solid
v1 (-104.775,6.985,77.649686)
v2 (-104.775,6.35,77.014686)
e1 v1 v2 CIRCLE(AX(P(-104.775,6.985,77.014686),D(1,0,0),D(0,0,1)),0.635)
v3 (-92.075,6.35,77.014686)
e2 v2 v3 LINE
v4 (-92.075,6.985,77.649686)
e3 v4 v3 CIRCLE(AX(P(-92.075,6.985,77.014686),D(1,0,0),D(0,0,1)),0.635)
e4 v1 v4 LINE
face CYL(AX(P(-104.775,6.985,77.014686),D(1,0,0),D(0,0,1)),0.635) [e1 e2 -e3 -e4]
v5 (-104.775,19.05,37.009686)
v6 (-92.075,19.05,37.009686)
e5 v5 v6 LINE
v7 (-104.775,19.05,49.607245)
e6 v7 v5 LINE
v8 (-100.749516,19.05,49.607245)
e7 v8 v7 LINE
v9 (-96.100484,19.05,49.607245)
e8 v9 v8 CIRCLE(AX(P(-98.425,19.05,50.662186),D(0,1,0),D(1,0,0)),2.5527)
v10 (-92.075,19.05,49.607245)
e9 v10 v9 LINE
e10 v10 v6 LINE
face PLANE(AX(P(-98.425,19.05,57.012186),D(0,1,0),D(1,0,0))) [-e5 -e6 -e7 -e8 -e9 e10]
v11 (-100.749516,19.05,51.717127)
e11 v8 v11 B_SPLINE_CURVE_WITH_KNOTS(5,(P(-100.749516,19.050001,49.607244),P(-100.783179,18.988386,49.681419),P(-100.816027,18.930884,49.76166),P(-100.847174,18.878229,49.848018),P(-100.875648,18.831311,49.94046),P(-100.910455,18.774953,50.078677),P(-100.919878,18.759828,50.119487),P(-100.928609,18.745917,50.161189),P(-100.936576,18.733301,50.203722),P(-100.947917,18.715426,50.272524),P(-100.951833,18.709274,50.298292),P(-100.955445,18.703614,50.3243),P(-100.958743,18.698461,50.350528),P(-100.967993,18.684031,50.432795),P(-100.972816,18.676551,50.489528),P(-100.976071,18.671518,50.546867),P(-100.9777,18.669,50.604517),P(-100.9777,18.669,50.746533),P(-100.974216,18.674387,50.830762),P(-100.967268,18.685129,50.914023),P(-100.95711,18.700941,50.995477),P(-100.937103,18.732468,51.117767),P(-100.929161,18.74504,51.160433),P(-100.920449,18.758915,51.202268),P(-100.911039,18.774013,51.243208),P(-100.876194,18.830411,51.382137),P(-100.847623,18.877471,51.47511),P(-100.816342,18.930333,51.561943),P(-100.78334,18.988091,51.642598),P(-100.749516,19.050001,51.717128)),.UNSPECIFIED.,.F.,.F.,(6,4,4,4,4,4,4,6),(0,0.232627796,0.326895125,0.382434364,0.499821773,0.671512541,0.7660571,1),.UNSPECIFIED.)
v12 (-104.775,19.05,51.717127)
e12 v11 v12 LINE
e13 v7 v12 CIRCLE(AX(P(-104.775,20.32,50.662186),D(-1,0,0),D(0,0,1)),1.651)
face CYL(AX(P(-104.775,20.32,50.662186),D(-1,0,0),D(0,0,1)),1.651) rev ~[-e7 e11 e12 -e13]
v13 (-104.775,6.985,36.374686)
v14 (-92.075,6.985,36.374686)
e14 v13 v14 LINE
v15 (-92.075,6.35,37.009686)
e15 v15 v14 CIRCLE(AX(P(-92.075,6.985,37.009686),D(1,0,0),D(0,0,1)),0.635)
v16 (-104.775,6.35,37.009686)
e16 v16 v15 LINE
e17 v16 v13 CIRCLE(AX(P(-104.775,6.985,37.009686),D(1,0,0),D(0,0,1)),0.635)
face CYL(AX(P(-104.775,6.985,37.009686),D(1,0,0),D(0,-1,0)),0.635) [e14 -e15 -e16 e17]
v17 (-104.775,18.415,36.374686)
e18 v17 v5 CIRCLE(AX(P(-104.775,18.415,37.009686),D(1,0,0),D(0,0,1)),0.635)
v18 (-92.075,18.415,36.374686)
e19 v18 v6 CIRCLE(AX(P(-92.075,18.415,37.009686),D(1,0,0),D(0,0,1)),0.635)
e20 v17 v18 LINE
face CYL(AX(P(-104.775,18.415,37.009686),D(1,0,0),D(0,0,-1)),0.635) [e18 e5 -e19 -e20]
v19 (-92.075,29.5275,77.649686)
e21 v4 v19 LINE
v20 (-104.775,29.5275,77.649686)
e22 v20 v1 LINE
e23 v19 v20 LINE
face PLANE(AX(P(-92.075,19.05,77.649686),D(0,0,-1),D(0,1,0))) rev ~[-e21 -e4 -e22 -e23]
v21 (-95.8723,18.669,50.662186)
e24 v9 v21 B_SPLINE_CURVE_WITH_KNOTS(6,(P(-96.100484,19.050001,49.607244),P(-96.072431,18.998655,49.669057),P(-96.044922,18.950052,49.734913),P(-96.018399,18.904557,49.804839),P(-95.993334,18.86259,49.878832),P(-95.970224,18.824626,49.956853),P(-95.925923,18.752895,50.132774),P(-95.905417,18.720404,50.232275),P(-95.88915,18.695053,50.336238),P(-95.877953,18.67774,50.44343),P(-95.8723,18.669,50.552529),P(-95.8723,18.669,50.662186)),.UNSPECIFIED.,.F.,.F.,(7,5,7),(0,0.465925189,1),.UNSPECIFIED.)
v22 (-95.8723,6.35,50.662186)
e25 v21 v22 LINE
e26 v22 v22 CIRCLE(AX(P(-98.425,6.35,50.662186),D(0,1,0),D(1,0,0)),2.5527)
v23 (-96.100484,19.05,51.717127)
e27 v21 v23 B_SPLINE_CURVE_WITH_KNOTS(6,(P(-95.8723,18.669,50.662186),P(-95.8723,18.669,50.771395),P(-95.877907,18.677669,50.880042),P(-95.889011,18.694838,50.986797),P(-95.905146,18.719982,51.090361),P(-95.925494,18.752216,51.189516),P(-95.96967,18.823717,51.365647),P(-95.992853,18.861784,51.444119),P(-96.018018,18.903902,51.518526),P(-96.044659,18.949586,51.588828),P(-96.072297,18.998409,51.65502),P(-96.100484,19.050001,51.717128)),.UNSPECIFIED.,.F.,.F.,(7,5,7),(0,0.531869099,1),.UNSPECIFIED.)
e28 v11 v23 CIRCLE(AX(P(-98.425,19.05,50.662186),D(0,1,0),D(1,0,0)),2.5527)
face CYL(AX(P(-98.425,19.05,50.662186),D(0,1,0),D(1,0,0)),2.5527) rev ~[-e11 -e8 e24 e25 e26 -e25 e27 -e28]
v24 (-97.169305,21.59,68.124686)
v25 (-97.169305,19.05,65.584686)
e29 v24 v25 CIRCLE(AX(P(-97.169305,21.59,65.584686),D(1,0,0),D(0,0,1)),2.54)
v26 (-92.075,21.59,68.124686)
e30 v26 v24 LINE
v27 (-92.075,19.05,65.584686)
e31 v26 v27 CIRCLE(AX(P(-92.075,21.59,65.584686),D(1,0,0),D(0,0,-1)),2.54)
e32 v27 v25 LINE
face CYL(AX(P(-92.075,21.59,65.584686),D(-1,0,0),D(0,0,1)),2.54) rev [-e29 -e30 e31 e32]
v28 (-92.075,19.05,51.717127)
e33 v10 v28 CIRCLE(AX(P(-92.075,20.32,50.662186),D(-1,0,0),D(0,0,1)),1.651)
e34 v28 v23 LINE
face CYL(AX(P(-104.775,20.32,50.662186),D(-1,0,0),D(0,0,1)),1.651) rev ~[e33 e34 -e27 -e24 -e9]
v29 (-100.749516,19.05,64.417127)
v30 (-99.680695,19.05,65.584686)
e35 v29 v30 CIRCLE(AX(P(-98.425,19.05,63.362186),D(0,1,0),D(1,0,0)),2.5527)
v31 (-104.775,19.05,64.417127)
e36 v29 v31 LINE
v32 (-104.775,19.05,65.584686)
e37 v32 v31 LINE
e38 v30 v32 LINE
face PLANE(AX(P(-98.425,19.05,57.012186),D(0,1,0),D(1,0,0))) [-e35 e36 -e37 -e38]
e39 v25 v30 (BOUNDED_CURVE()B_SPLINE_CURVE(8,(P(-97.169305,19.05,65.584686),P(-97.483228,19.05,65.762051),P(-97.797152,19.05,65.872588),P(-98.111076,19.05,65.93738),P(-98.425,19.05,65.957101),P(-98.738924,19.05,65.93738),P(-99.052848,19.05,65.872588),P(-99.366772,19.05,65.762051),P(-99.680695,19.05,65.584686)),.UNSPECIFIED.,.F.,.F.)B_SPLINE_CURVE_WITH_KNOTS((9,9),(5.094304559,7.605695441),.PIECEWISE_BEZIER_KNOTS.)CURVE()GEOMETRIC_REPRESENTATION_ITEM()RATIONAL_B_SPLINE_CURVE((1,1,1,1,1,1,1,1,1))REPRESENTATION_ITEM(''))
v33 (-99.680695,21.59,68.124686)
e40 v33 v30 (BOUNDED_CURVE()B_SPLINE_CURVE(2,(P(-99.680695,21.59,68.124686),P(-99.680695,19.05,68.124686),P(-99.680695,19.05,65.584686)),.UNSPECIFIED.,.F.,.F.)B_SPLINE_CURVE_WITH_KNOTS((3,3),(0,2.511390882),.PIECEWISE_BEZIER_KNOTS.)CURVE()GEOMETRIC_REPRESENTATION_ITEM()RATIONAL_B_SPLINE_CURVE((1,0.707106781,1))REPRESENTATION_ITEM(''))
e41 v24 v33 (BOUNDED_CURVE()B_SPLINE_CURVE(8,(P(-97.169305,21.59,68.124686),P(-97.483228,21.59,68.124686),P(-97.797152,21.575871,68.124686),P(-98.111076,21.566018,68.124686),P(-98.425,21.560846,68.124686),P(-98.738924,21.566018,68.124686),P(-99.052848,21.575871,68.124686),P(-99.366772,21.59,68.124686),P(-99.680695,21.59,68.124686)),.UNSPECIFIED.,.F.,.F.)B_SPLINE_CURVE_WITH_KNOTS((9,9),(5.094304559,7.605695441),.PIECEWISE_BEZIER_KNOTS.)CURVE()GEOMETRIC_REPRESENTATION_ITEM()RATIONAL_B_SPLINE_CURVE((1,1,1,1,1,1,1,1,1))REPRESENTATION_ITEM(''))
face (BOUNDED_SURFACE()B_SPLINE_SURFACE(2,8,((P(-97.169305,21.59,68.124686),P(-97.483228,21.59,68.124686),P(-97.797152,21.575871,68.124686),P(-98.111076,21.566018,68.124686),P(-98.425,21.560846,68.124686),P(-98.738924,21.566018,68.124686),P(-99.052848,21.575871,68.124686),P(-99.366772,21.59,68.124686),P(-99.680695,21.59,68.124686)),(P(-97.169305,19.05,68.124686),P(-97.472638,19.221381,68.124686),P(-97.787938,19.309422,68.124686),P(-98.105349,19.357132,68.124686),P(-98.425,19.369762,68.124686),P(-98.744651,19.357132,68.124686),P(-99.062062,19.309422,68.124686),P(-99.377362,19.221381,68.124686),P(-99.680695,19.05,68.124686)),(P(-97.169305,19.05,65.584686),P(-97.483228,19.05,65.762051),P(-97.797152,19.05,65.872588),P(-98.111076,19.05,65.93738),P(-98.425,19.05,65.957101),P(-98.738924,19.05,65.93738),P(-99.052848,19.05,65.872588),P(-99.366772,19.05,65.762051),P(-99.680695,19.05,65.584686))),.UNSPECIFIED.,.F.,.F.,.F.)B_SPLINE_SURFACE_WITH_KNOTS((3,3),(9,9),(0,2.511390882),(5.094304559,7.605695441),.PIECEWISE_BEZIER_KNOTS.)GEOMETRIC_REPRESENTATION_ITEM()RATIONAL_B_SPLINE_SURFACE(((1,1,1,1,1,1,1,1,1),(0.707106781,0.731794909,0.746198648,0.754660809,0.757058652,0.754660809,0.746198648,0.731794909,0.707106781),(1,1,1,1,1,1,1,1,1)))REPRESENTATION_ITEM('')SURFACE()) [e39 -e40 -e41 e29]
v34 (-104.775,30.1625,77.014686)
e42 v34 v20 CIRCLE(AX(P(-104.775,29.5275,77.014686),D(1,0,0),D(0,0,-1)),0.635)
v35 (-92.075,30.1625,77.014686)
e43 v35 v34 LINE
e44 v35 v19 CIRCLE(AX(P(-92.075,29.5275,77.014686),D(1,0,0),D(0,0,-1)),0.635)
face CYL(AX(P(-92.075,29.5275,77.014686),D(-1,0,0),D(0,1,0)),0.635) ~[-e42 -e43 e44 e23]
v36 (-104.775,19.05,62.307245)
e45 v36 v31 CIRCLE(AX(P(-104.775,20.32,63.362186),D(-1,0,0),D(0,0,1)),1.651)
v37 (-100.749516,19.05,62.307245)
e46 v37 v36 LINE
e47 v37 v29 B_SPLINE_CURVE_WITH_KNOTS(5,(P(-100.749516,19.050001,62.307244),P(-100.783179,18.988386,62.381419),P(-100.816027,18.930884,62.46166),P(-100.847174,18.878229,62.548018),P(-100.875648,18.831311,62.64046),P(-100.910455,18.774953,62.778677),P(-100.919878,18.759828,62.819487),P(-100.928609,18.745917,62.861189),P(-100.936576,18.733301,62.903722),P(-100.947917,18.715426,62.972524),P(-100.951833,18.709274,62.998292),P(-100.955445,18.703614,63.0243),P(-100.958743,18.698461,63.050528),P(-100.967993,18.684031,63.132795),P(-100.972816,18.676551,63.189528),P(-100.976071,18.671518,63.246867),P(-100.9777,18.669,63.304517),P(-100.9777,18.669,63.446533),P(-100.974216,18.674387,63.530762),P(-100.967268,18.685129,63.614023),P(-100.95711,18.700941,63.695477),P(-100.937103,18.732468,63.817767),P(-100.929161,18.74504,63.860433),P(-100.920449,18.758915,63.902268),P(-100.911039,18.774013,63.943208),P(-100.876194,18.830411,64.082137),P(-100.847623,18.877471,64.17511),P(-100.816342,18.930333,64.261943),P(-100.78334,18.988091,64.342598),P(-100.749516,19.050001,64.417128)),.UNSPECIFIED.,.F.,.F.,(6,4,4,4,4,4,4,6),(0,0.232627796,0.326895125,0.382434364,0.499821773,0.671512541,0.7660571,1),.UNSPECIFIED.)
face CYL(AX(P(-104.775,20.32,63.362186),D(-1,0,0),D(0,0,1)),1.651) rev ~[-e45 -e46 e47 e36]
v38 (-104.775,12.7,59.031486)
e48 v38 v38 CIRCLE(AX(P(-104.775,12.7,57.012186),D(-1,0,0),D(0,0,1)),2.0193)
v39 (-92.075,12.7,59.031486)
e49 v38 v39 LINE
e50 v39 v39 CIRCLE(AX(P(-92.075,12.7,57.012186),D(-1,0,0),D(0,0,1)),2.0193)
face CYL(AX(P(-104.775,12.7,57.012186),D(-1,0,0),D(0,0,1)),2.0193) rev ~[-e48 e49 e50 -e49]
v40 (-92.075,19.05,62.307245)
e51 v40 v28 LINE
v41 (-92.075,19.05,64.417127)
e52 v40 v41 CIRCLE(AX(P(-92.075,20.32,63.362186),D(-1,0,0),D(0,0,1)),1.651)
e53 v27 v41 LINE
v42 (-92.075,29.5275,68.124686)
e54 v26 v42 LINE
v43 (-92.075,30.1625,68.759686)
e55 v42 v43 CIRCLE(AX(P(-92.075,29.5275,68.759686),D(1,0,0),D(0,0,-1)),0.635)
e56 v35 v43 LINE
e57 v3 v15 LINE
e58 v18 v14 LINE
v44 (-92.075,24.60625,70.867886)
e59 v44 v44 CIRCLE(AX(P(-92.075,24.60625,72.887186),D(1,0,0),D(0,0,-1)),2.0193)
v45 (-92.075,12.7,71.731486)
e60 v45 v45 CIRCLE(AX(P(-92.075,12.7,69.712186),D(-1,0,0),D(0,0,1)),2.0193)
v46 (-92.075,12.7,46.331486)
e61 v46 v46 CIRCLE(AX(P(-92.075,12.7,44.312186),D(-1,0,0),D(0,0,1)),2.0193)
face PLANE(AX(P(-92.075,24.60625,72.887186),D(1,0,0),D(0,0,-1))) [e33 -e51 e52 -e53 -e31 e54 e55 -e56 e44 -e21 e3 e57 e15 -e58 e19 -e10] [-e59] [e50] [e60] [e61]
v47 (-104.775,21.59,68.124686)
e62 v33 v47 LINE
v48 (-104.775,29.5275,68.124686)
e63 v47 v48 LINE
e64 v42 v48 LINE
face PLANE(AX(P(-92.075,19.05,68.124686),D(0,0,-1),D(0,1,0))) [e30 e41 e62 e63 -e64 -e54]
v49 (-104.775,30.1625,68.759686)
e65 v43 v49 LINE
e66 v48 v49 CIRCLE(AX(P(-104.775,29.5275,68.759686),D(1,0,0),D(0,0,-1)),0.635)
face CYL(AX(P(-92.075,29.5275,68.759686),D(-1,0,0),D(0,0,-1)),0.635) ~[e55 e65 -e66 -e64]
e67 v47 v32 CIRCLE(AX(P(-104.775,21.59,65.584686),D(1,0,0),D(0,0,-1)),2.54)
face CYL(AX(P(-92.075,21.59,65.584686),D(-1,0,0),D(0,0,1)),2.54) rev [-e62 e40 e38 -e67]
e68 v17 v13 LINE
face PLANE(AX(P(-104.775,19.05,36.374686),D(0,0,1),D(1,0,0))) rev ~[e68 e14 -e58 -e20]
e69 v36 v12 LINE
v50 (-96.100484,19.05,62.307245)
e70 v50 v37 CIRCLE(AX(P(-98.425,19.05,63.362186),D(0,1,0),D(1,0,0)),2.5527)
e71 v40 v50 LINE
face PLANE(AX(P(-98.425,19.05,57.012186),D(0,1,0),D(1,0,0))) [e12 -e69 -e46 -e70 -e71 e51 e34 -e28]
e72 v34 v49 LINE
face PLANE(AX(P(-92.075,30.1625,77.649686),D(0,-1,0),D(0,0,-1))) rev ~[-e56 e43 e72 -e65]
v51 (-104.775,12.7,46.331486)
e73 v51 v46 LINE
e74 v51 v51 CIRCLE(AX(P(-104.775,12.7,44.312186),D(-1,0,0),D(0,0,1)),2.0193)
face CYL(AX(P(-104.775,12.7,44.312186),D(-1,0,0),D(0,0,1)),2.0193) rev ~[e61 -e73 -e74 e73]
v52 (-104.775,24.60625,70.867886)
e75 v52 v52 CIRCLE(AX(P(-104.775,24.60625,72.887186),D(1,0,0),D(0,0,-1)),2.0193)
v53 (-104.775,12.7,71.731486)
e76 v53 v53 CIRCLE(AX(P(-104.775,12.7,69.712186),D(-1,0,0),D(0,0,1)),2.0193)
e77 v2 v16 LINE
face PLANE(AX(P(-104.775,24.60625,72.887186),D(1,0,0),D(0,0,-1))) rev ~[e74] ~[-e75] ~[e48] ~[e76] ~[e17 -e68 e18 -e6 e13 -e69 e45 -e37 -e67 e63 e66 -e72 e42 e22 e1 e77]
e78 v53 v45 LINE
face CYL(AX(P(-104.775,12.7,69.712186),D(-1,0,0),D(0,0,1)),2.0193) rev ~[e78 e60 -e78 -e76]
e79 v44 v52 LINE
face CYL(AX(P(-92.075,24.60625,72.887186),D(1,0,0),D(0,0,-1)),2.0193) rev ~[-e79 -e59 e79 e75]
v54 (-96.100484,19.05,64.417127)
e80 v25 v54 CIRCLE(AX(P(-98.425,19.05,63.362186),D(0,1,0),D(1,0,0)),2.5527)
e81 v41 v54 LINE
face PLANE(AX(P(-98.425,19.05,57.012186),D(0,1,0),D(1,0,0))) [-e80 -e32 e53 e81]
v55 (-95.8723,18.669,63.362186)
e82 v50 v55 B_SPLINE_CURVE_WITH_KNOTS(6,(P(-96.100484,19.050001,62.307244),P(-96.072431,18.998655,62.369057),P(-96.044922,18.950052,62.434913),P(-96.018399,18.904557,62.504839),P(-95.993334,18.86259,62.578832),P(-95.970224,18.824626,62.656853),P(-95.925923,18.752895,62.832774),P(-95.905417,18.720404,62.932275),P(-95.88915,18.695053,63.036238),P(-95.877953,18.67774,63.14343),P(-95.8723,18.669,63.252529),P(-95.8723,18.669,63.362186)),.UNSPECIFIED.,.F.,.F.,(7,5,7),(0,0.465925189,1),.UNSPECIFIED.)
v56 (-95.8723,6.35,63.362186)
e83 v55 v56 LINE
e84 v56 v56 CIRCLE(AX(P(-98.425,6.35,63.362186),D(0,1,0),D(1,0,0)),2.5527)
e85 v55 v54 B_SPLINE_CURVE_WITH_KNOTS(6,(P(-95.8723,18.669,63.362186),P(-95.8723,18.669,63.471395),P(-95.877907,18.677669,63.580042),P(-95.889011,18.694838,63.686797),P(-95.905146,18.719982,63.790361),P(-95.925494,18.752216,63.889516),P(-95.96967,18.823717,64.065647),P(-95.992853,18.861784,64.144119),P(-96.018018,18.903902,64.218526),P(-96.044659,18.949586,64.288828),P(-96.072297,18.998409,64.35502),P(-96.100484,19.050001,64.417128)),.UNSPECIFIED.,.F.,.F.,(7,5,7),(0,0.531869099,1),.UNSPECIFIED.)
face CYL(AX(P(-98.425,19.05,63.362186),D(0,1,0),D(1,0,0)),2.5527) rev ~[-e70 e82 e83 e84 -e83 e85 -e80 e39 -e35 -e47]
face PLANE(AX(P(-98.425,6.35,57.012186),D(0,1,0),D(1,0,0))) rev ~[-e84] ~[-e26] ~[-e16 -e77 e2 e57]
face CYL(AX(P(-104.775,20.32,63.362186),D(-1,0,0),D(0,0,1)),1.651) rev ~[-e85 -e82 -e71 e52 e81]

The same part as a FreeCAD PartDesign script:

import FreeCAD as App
import Part
import Sketcher
Q = App.Units.Quantity


def edges_at(feature, points):
    """Names of the edges that pass closest to the given points."""
    edges = feature.Shape.Edges
    near = lambda p: min(range(len(edges)), key=lambda i: edges[i].distToShape(Part.Vertex(*p))[0])
    return sorted({f"Edge{near(p) + 1}" for p in points})


def add_polygon(sketch, points):
    """Adds a closed chain of lines whose ends are joined by coincident constraints."""
    first, n = sketch.GeometryCount, len(points)
    for a, b in zip(points, points[1:] + points[:1]):
        sketch.addGeometry(Part.LineSegment(App.Vector(*a, 0), App.Vector(*b, 0)), False)
    for i in range(n):
        sketch.addConstraint(Sketcher.Constraint("Coincident", first + i, 2, first + (i + 1) % n, 1))

doc = App.newDocument("Part")
params = doc.addObject("Spreadsheet::Sheet", "Params")
for row, (alias, value) in enumerate([
    ("sketch1_diameter", "0.201 in"),
    ("sketch1_width", "0.5 in"),
    ("sketch1_height", "1.625 in"),
    ("pad1_length", "0.5 in"),
    ("sketch2_diameter", "0.159 in"),
    ("sketch3_diameter", "0.159 in"),
    ("sketch3_width", "0.4375 in"),
    ("sketch3_height", "0.375 in"),
    ("pad2_length", "0.5 in"),
    ("sketch4_diameter", "0.13 in"),
    ("fillet_radius", "0.1 in"),
    ("fillet2_radius", "0.025 in"),
], start=1):
    params.set(f"A{row}", alias)
    params.set(f"B{row}", "=" + value)
    params.setAlias(f"B{row}", alias)

body = doc.addObject("PartDesign::Body", "Body")

# Sketch on XZ plane
sketch1 = body.newObject("Sketcher::SketchObject", "Sketch")
sketch1.AttachmentSupport = (doc.getObject("XZ_Plane"), [""])
sketch1.MapMode = "FlatFace"
sketch1.AttachmentOffset = App.Placement(App.Vector(0, 0, -0.75 * 25.4), App.Rotation())
add_polygon(sketch1, [(-104.8, 36.4), (-104.8, 77.6), (-92.1, 77.6), (-92.1, 36.4)])  # lines 0-3
sketch1.addGeometry(Part.Circle(App.Vector(-98.4, 63.4, 0), App.Vector(0, 0, 1), 2.6), False)  # 4
sketch1.addGeometry(Part.Circle(App.Vector(-98.4, 50.7, 0), App.Vector(0, 0, 1), 2.6), False)  # 5
sketch1.addConstraint([
    Sketcher.Constraint("Vertical", 0),
    Sketcher.Constraint("Horizontal", 1),
    Sketcher.Constraint("Vertical", 2),
    Sketcher.Constraint("Horizontal", 3),
    Sketcher.Constraint("Equal", 4, 5),
    Sketcher.Constraint("Vertical", 4, 3, 5, 3),
    Sketcher.Constraint("Diameter", 4, Q("0.201 in")),
    Sketcher.Constraint("DistanceX", 1, 1, 1, 2, Q("0.5 in")),
    Sketcher.Constraint("DistanceY", 5, 3, 4, 3, Q("0.5 in")),
    Sketcher.Constraint("DistanceY", 0, 1, 0, 2, Q("1.625 in")),
    Sketcher.Constraint("DistanceX", 0, 2, 4, 3, Q("0.25 in")),
    Sketcher.Constraint("DistanceX", 4, 3, -1, 1, Q("3.875 in")),
    Sketcher.Constraint("DistanceY", 4, 3, 0, 2, Q("0.5625 in")),
    Sketcher.Constraint("DistanceY", -1, 1, 4, 3, 63.362186),
])
sketch1.setExpression("Constraints[10]", "Params.sketch1_diameter")
sketch1.setExpression("Constraints[11]", "Params.sketch1_width")
sketch1.setExpression("Constraints[13]", "Params.sketch1_height")
pad1 = body.newObject("PartDesign::Pad", "Pad")
pad1.Profile = sketch1
pad1.setExpression("Length", "Params.pad1_length")

# Sketch on YZ plane
sketch2 = body.newObject("Sketcher::SketchObject", "Sketch001")
sketch2.AttachmentSupport = (doc.getObject("YZ_Plane"), [""])
sketch2.MapMode = "FlatFace"
sketch2.AttachmentOffset = App.Placement(App.Vector(0, 0, -4.125 * 25.4), App.Rotation())
sketch2.addGeometry([
    Part.Circle(App.Vector(12.7, 44.3, 0), App.Vector(0, 0, 1), 2),
    Part.Circle(App.Vector(12.7, 57, 0), App.Vector(0, 0, 1), 2),
    Part.Circle(App.Vector(12.7, 69.7, 0), App.Vector(0, 0, 1), 2),
], False)
sketch2.addConstraint([
    Sketcher.Constraint("Equal", 0, 1),
    Sketcher.Constraint("Equal", 1, 2),
    Sketcher.Constraint("Vertical", 0, 3, 1, 3),
    Sketcher.Constraint("Vertical", 1, 3, 2, 3),
    Sketcher.Constraint("Diameter", 0, Q("0.159 in")),
    Sketcher.Constraint("DistanceY", 0, 3, 2, 3, Q("1 in")),
    Sketcher.Constraint("DistanceX", -1, 1, 0, 3, Q("0.5 in")),
    Sketcher.Constraint("DistanceY", 0, 3, 1, 3, Q("0.5 in")),
    Sketcher.Constraint("DistanceY", -1, 1, 0, 3, 44.312186),
])
sketch2.setExpression("Constraints[4]", "Params.sketch2_diameter")
pocket1 = body.newObject("PartDesign::Pocket", "Pocket")
pocket1.Profile = sketch2
pocket1.Type = "ThroughAll"
pocket1.Reversed = True

# Sketch on YZ plane
sketch3 = body.newObject("Sketcher::SketchObject", "Sketch002")
sketch3.AttachmentSupport = (doc.getObject("YZ_Plane"), [""])
sketch3.MapMode = "FlatFace"
sketch3.AttachmentOffset = App.Placement(App.Vector(0, 0, -3.625 * 25.4), App.Rotation())
add_polygon(sketch3, [(30.2, 77.6), (19.1, 77.6), (19.1, 68.1), (30.2, 68.1)])  # lines 0-3
sketch3.addGeometry(Part.Circle(App.Vector(24.6, 72.9, 0), App.Vector(0, 0, 1), 2), False)  # 4
sketch3.addConstraint([
    Sketcher.Constraint("Horizontal", 0),
    Sketcher.Constraint("Vertical", 1),
    Sketcher.Constraint("Horizontal", 2),
    Sketcher.Constraint("Vertical", 3),
    Sketcher.Constraint("Diameter", 4, Q("0.159 in")),
    Sketcher.Constraint("DistanceX", 0, 2, 0, 1, Q("0.4375 in")),
    Sketcher.Constraint("DistanceY", 1, 2, 1, 1, Q("0.375 in")),
    Sketcher.Constraint("DistanceX", -1, 1, 0, 2, Q("0.75 in")),
    Sketcher.Constraint("DistanceX", -1, 1, 4, 3, Q("0.96875 in")),
    Sketcher.Constraint("DistanceY", 4, 3, 0, 2, Q("0.1875 in")),
    Sketcher.Constraint("DistanceY", -1, 1, 4, 3, 72.887186),
])
sketch3.setExpression("Constraints[8]", "Params.sketch3_diameter")
sketch3.setExpression("Constraints[9]", "Params.sketch3_width")
sketch3.setExpression("Constraints[10]", "Params.sketch3_height")
pad2 = body.newObject("PartDesign::Pad", "Pad001")
pad2.Profile = sketch3
pad2.setExpression("Length", "Params.pad2_length")
pad2.Reversed = True

# Sketch on YZ plane
sketch4 = body.newObject("Sketcher::SketchObject", "Sketch003")
sketch4.AttachmentSupport = (doc.getObject("YZ_Plane"), [""])
sketch4.MapMode = "FlatFace"
sketch4.AttachmentOffset = App.Placement(App.Vector(0, 0, -4.125 * 25.4), App.Rotation())
sketch4.addGeometry([
    Part.Circle(App.Vector(20.3, 50.7, 0), App.Vector(0, 0, 1), 1.7),
    Part.Circle(App.Vector(20.3, 63.4, 0), App.Vector(0, 0, 1), 1.7),
], False)
sketch4.addConstraint([
    Sketcher.Constraint("Equal", 0, 1),
    Sketcher.Constraint("Vertical", 0, 3, 1, 3),
    Sketcher.Constraint("Diameter", 0, Q("0.13 in")),
    Sketcher.Constraint("DistanceX", -1, 1, 0, 3, Q("0.8 in")),
    Sketcher.Constraint("DistanceY", 0, 3, 1, 3, Q("0.5 in")),
    Sketcher.Constraint("DistanceY", -1, 1, 0, 3, 50.662186),
])
sketch4.setExpression("Constraints[2]", "Params.sketch4_diameter")
pocket2 = body.newObject("PartDesign::Pocket", "Pocket001")
pocket2.Profile = sketch4
pocket2.Type = "ThroughAll"
pocket2.Reversed = True
doc.recompute()

fillet = body.newObject("PartDesign::Fillet", "Fillet")
fillet.Base = (pocket2, edges_at(pocket2, [(-98.425, 19.05, 68.125)]))
fillet.setExpression("Radius", "Params.fillet_radius")
doc.recompute()

fillet2 = body.newObject("PartDesign::Fillet", "Fillet001")
fillet2.Base = (fillet, edges_at(fillet, [
    (-98.425, 6.35, 36.375),
    (-98.425, 30.163, 77.65),
    (-98.425, 30.163, 68.125),
    (-98.425, 6.35, 77.65),
    (-98.425, 19.05, 36.375),
]))
fillet2.setExpression("Radius", "Params.fillet2_radius")

doc.recompute()
